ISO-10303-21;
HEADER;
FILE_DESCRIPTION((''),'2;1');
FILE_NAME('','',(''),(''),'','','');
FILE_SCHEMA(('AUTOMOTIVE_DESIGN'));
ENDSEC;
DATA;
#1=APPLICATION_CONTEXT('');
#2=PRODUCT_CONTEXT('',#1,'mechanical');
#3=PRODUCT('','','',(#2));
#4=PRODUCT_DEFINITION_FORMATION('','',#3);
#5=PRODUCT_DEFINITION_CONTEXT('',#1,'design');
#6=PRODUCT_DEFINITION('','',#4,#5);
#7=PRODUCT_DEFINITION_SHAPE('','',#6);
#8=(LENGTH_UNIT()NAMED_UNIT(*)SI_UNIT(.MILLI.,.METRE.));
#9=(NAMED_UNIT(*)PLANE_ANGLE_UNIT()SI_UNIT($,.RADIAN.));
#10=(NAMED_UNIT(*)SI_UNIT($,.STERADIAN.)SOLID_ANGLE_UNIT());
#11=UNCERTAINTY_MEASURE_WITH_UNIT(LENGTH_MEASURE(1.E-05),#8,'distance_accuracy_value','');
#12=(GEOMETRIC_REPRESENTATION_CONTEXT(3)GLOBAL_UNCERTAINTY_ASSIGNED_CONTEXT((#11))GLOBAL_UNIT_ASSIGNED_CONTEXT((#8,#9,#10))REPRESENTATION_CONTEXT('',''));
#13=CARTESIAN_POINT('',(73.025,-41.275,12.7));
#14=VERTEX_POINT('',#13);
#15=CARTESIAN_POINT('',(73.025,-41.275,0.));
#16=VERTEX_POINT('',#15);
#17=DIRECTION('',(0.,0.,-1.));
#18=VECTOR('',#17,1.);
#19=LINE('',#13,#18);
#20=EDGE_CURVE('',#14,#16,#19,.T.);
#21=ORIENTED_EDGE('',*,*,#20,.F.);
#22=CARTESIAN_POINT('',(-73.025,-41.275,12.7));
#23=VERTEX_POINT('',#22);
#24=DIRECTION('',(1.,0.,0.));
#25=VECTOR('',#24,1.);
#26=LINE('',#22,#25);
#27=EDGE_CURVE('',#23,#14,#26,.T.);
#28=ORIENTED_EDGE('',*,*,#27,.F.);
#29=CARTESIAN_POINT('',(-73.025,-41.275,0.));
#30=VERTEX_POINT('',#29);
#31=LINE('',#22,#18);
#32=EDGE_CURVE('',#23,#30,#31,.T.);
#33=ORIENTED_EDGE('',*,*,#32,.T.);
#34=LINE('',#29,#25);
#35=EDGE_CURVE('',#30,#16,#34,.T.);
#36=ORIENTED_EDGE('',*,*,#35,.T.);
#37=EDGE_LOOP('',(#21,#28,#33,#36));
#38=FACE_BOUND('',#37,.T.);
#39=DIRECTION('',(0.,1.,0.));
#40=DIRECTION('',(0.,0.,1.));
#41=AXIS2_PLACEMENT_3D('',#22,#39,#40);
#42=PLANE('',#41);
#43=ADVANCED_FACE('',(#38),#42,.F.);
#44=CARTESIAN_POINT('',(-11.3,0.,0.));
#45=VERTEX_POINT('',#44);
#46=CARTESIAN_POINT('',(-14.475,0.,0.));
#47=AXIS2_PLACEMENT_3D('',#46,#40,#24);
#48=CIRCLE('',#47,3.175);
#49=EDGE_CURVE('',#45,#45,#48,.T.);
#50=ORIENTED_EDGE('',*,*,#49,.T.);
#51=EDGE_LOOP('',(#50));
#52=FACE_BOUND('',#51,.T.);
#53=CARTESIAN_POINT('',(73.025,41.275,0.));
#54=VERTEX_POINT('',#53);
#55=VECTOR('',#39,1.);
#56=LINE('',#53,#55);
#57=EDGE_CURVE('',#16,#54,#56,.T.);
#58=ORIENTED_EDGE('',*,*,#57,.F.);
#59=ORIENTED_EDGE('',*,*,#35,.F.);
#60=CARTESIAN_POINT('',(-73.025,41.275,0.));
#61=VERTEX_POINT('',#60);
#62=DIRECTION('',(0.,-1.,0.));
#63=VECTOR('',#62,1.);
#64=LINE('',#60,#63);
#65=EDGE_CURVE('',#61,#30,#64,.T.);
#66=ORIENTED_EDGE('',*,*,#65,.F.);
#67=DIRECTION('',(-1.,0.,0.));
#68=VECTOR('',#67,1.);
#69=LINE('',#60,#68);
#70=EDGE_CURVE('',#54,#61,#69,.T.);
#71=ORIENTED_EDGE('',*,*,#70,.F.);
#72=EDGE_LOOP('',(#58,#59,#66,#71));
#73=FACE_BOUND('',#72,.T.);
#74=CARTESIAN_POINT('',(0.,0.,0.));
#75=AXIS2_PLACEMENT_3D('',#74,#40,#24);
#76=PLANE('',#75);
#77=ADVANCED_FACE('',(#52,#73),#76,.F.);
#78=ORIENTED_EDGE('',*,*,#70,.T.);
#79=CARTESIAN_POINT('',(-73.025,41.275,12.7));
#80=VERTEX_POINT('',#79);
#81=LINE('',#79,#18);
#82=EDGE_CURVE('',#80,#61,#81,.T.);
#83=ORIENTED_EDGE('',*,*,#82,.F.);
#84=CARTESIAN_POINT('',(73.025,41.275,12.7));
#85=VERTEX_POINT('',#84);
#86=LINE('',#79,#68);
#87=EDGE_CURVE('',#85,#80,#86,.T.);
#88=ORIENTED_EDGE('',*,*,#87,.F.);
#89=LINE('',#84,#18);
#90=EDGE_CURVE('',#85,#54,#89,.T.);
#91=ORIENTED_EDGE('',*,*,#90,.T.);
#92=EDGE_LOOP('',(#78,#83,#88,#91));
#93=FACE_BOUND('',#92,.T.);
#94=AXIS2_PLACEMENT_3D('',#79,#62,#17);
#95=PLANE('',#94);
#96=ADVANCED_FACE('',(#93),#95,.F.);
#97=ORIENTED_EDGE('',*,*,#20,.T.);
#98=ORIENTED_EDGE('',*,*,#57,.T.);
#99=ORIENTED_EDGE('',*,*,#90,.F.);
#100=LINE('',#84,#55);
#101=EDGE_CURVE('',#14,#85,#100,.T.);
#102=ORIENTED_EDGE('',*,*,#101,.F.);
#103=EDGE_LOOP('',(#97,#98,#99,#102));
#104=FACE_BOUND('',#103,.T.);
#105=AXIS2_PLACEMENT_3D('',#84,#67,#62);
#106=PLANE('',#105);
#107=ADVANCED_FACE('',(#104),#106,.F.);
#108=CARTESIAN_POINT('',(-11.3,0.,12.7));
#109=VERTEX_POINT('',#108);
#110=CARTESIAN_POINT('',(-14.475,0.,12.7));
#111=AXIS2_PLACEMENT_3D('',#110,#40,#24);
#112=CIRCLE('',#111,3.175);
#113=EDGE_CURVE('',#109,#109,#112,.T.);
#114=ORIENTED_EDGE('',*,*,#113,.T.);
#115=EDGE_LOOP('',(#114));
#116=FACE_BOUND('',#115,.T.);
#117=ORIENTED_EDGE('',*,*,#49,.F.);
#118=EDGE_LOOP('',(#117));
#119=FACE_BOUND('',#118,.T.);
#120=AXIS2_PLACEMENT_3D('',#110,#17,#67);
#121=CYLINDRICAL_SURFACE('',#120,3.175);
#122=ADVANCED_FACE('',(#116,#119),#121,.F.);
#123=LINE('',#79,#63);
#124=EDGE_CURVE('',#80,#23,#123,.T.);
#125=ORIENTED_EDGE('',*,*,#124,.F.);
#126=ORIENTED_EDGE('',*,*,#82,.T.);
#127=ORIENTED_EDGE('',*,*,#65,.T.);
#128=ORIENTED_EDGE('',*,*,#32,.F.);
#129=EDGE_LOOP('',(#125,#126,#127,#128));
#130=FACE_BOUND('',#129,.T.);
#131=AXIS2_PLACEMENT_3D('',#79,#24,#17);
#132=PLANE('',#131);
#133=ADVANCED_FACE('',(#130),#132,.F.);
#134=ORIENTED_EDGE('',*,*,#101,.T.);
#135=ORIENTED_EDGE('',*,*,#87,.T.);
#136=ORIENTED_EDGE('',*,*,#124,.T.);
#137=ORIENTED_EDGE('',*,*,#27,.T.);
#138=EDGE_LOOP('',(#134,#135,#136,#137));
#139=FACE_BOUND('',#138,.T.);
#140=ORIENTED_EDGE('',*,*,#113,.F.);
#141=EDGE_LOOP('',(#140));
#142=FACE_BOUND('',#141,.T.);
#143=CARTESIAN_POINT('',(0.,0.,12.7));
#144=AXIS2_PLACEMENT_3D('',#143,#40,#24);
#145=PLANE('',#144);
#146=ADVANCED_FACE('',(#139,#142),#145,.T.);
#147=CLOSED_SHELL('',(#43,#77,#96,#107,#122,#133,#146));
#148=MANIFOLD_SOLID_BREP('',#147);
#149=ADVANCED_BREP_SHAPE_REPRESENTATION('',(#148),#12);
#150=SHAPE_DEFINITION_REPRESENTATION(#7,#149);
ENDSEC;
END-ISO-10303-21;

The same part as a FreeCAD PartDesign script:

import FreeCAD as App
import Part
import Sketcher

V = App.Vector
Q = App.Units.Quantity


def add_polygon(sketch, points):
    """Adds a closed chain of lines whose ends are joined by coincident constraints."""
    first, n = sketch.GeometryCount, len(points)
    for a, b in zip(points, points[1:] + points[:1]):
        sketch.addGeometry(Part.LineSegment(App.Vector(*a, 0), App.Vector(*b, 0)), False)
    for i in range(n):
        sketch.addConstraint(Sketcher.Constraint("Coincident", first + i, 2, first + (i + 1) % n, 1))

doc = App.newDocument("Part")
params = doc.addObject("Spreadsheet::Sheet", "Params")
for row, (alias, value) in enumerate([
    ("sketch1_diameter", "0.25 in"),
    ("sketch1_width", "5.75 in"),
    ("sketch1_height", "3.25 in"),
    ("pad1_length", "0.5 in"),
], start=1):
    params.set(f"A{row}", alias)
    params.set(f"B{row}", "=" + value)
    params.setAlias(f"B{row}", alias)

body = doc.addObject("PartDesign::Body", "Body")

# Sketch on XY plane
sketch1 = body.newObject("Sketcher::SketchObject", "Sketch")
sketch1.AttachmentSupport = (doc.getObject("XY_Plane"), [""])
sketch1.MapMode = "FlatFace"
add_polygon(sketch1, [(-73.025, 41.275), (-73.025, -41.275), (73.025, -41.275), (73.025, 41.275)])  # lines 0-3
sketch1.addGeometry(Part.Circle(V(-14.475, 0, 0), V(0, 0, 1), 3.175), False)  # 4
sketch1.addConstraint(Sketcher.Constraint("Vertical", 0))
sketch1.addConstraint(Sketcher.Constraint("Horizontal", 1))
sketch1.addConstraint(Sketcher.Constraint("Vertical", 2))
sketch1.addConstraint(Sketcher.Constraint("Horizontal", 3))
sketch1.addConstraint(Sketcher.Constraint("Symmetric", 0, 2, 2, 2, -1, 1))
sketch1.addConstraint(Sketcher.Constraint("PointOnObject", 4, 3, -1))
sketch1.addConstraint(Sketcher.Constraint("Diameter", 4, Q("0.25 in")))
sketch1.addConstraint(Sketcher.Constraint("DistanceX", 1, 1, 1, 2, Q("5.75 in")))
sketch1.addConstraint(Sketcher.Constraint("DistanceY", 0, 2, 0, 1, Q("3.25 in")))
sketch1.addConstraint(Sketcher.Constraint("DistanceX", 4, 3, -1, 1, Q("14.475 mm")))
sketch1.setExpression("Constraints[10]", "Params.sketch1_diameter")
sketch1.setExpression("Constraints[11]", "Params.sketch1_width")
sketch1.setExpression("Constraints[12]", "Params.sketch1_height")
pad1 = body.newObject("PartDesign::Pad", "Pad")
pad1.Profile = sketch1
pad1.setExpression("Length", "Params.pad1_length")

doc.recompute()
